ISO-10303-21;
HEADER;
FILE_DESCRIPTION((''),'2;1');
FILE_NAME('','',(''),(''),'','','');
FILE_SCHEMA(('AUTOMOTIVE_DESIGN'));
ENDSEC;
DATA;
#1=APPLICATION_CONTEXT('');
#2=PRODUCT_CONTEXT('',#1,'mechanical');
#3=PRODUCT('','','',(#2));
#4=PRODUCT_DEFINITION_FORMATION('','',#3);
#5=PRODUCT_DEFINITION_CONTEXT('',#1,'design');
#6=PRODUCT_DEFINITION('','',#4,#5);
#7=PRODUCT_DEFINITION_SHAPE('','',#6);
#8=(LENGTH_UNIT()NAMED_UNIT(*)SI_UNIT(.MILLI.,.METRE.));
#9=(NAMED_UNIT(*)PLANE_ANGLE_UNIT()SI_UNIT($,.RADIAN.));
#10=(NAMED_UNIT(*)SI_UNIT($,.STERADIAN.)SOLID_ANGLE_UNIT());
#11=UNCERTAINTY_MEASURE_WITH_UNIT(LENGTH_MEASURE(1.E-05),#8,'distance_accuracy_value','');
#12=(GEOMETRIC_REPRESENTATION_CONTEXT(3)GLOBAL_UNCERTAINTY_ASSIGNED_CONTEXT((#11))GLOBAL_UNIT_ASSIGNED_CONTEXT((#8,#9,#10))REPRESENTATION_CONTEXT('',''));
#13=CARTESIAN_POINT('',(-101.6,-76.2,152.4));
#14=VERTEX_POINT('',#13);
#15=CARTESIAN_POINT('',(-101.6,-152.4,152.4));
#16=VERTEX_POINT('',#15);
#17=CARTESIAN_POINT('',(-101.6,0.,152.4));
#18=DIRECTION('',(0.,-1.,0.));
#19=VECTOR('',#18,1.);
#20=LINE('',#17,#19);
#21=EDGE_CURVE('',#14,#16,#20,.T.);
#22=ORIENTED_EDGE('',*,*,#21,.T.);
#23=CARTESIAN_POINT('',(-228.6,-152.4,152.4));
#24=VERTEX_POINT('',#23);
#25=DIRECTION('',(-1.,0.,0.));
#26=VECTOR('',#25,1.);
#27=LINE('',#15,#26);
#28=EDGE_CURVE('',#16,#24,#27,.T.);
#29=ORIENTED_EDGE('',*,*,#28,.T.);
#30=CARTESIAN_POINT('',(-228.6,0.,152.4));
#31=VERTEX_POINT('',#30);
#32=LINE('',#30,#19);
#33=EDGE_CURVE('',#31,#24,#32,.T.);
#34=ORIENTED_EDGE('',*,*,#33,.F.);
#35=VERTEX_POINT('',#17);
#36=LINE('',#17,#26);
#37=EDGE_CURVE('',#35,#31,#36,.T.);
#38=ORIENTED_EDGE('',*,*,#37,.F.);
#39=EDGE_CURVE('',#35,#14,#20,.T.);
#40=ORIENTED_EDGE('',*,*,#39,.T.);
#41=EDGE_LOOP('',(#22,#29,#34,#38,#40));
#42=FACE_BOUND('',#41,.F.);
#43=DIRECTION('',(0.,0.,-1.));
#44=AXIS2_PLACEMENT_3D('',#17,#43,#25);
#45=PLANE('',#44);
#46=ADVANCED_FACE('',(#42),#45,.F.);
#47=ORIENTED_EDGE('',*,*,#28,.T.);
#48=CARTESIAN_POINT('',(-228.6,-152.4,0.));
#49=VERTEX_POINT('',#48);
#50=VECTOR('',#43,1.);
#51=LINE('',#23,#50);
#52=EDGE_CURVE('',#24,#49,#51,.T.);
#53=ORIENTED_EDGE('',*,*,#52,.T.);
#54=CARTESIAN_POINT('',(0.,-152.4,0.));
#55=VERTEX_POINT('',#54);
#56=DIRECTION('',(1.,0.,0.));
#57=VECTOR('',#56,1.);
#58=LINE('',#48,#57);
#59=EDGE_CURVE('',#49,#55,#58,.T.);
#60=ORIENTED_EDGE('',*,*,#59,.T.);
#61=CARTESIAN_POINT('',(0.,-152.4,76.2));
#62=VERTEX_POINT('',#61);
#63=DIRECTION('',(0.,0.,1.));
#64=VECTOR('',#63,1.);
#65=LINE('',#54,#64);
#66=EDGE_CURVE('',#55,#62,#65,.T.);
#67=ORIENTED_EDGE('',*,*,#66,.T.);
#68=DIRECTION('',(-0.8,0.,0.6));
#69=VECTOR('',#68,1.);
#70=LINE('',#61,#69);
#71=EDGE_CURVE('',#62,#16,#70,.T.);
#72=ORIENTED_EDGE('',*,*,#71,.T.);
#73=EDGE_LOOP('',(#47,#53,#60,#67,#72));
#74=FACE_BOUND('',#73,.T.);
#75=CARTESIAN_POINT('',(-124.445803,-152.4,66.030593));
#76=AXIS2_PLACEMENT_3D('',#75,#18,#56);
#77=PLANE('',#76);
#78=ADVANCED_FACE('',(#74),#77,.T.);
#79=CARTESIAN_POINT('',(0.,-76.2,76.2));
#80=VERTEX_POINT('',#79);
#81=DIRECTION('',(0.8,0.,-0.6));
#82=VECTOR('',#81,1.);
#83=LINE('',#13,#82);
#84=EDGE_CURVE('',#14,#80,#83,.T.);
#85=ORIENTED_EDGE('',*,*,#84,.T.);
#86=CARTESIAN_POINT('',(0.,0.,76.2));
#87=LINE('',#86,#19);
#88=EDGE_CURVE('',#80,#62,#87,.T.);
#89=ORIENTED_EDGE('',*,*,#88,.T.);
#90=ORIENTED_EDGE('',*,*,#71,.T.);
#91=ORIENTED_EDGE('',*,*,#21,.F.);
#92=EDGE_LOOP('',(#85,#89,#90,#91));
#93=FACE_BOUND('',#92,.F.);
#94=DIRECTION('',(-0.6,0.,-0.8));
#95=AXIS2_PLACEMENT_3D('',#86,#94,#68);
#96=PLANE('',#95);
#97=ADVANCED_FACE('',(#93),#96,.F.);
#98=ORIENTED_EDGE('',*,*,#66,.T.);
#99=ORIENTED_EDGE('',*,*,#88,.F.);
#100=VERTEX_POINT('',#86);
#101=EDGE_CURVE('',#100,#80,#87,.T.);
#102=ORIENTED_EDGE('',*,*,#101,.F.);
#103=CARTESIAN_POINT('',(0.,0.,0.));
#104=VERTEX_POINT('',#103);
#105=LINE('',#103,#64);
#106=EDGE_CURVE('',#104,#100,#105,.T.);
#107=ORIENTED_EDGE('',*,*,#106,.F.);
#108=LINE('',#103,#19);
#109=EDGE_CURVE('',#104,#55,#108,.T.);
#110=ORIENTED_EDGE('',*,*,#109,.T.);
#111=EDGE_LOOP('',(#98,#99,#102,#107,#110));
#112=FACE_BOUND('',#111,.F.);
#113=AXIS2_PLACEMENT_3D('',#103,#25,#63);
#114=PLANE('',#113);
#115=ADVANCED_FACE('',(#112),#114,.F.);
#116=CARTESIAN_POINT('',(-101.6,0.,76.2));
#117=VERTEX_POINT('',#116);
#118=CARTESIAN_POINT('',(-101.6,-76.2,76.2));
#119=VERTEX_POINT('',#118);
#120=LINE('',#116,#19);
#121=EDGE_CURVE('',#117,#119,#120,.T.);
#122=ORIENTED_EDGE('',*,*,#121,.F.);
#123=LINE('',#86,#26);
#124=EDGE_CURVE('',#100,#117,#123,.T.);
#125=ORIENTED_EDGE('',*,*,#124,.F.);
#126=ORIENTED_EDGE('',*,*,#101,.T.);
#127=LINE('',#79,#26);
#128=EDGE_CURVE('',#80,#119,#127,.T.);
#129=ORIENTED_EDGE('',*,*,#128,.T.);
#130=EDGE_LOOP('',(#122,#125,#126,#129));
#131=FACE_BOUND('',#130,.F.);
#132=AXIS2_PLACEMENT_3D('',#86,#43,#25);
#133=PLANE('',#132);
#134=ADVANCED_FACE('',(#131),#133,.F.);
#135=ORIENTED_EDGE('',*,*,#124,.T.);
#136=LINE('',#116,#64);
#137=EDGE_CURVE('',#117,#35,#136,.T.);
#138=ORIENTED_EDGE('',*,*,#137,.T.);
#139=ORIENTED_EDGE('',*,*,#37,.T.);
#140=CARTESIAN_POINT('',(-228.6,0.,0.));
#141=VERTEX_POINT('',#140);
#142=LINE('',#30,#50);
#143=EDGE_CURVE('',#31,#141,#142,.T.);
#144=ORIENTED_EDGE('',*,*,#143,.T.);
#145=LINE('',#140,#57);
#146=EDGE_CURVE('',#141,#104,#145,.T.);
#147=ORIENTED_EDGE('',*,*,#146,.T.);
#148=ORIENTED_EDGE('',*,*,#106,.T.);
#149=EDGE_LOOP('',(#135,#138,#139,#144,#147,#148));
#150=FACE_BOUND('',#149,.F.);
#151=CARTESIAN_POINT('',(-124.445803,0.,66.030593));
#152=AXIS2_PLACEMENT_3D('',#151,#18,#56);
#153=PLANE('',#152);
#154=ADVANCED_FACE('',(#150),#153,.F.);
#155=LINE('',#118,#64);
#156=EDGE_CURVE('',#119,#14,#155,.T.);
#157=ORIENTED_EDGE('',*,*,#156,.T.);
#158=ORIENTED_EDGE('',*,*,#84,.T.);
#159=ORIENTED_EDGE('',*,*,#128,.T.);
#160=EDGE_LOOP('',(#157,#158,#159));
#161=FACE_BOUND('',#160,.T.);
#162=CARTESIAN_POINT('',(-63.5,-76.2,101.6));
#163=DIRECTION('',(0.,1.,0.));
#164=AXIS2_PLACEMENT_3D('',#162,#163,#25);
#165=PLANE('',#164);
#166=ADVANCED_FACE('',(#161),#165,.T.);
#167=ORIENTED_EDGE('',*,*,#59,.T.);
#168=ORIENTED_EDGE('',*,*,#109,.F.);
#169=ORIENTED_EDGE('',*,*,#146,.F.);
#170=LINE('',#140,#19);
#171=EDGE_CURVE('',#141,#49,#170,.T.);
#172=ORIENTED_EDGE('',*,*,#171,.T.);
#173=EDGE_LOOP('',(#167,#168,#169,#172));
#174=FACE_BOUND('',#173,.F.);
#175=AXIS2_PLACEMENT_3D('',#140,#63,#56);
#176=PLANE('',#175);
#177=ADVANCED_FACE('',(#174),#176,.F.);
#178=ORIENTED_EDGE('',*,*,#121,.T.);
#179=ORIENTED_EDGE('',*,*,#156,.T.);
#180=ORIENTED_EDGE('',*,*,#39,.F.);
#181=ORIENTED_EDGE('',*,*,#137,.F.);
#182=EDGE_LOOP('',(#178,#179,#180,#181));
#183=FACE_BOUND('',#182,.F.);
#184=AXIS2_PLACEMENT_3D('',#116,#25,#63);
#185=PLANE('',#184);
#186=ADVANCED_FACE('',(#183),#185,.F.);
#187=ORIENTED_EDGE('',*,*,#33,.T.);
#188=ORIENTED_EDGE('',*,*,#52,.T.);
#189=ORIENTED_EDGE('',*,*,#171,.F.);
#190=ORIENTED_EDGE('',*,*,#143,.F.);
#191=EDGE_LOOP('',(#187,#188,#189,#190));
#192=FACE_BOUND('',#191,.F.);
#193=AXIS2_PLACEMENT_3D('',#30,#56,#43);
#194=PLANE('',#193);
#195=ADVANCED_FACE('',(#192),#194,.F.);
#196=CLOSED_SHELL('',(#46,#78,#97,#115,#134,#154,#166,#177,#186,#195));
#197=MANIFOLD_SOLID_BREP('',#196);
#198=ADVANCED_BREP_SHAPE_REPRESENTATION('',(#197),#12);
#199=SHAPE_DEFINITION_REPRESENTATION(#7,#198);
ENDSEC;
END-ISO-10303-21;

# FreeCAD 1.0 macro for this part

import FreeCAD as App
import Part
import Sketcher
Q = App.Units.Quantity


def add_polygon(sketch, points):
    """Adds a closed chain of lines whose ends are joined by coincident constraints."""
    first, n = sketch.GeometryCount, len(points)
    for a, b in zip(points, points[1:] + points[:1]):
        sketch.addGeometry(Part.LineSegment(App.Vector(*a, 0), App.Vector(*b, 0)), False)
    for i in range(n):
        sketch.addConstraint(Sketcher.Constraint("Coincident", first + i, 2, first + (i + 1) % n, 1))

doc = App.newDocument("Part")
body = doc.addObject("PartDesign::Body", "Body")

# Sketch on XZ plane
sketch1 = body.newObject("Sketcher::SketchObject", "Sketch")
sketch1.AttachmentSupport = (doc.getObject("XZ_Plane"), [""])
sketch1.MapMode = "FlatFace"
add_polygon(sketch1, [(-228.6, 0), (0, 0), (0, 76.2), (-101.6, 152.4), (-228.6, 152.4)])  # lines 0-4
sketch1.addConstraint([
    Sketcher.Constraint("Horizontal", 0),
    Sketcher.Constraint("Vertical", 1),
    Sketcher.Constraint("Horizontal", 3),
    Sketcher.Constraint("Vertical", 4),
    Sketcher.Constraint("Coincident", 0, 2, -1, 1),
    Sketcher.Constraint("DistanceX", 0, 1, 0, 2, Q("9 in")),
    Sketcher.Constraint("DistanceX", 3, 2, 3, 1, Q("5 in")),
    Sketcher.Constraint("DistanceY", 1, 1, 1, 2, Q("3 in")),
    Sketcher.Constraint("DistanceY", 4, 2, 4, 1, Q("6 in")),
])
pad1 = body.newObject("PartDesign::Pad", "Pad")
pad1.Profile = sketch1
pad1.Length = Q("6 in")

# Sketch on XZ plane
sketch2 = body.newObject("Sketcher::SketchObject", "Sketch001")
sketch2.AttachmentSupport = (doc.getObject("XZ_Plane"), [""])
sketch2.MapMode = "FlatFace"
add_polygon(sketch2, [(-101.6, 152.4), (0, 76.2), (-101.6, 76.2)])  # lines 0-2
sketch2.addConstraint([
    Sketcher.Constraint("Horizontal", 1),
    Sketcher.Constraint("Vertical", 2),
    Sketcher.Constraint("PointOnObject", 0, 2, -2),
    Sketcher.Constraint("DistanceX", 1, 2, 1, 1, Q("4 in")),
    Sketcher.Constraint("DistanceY", 2, 1, 2, 2, Q("3 in")),
    Sketcher.Constraint("DistanceY", -1, 1, 0, 2, Q("3 in")),
])
pocket1 = body.newObject("PartDesign::Pocket", "Pocket")
pocket1.Profile = sketch2
pocket1.Length = Q("3 in")
pocket1.Reversed = True

doc.recompute()
